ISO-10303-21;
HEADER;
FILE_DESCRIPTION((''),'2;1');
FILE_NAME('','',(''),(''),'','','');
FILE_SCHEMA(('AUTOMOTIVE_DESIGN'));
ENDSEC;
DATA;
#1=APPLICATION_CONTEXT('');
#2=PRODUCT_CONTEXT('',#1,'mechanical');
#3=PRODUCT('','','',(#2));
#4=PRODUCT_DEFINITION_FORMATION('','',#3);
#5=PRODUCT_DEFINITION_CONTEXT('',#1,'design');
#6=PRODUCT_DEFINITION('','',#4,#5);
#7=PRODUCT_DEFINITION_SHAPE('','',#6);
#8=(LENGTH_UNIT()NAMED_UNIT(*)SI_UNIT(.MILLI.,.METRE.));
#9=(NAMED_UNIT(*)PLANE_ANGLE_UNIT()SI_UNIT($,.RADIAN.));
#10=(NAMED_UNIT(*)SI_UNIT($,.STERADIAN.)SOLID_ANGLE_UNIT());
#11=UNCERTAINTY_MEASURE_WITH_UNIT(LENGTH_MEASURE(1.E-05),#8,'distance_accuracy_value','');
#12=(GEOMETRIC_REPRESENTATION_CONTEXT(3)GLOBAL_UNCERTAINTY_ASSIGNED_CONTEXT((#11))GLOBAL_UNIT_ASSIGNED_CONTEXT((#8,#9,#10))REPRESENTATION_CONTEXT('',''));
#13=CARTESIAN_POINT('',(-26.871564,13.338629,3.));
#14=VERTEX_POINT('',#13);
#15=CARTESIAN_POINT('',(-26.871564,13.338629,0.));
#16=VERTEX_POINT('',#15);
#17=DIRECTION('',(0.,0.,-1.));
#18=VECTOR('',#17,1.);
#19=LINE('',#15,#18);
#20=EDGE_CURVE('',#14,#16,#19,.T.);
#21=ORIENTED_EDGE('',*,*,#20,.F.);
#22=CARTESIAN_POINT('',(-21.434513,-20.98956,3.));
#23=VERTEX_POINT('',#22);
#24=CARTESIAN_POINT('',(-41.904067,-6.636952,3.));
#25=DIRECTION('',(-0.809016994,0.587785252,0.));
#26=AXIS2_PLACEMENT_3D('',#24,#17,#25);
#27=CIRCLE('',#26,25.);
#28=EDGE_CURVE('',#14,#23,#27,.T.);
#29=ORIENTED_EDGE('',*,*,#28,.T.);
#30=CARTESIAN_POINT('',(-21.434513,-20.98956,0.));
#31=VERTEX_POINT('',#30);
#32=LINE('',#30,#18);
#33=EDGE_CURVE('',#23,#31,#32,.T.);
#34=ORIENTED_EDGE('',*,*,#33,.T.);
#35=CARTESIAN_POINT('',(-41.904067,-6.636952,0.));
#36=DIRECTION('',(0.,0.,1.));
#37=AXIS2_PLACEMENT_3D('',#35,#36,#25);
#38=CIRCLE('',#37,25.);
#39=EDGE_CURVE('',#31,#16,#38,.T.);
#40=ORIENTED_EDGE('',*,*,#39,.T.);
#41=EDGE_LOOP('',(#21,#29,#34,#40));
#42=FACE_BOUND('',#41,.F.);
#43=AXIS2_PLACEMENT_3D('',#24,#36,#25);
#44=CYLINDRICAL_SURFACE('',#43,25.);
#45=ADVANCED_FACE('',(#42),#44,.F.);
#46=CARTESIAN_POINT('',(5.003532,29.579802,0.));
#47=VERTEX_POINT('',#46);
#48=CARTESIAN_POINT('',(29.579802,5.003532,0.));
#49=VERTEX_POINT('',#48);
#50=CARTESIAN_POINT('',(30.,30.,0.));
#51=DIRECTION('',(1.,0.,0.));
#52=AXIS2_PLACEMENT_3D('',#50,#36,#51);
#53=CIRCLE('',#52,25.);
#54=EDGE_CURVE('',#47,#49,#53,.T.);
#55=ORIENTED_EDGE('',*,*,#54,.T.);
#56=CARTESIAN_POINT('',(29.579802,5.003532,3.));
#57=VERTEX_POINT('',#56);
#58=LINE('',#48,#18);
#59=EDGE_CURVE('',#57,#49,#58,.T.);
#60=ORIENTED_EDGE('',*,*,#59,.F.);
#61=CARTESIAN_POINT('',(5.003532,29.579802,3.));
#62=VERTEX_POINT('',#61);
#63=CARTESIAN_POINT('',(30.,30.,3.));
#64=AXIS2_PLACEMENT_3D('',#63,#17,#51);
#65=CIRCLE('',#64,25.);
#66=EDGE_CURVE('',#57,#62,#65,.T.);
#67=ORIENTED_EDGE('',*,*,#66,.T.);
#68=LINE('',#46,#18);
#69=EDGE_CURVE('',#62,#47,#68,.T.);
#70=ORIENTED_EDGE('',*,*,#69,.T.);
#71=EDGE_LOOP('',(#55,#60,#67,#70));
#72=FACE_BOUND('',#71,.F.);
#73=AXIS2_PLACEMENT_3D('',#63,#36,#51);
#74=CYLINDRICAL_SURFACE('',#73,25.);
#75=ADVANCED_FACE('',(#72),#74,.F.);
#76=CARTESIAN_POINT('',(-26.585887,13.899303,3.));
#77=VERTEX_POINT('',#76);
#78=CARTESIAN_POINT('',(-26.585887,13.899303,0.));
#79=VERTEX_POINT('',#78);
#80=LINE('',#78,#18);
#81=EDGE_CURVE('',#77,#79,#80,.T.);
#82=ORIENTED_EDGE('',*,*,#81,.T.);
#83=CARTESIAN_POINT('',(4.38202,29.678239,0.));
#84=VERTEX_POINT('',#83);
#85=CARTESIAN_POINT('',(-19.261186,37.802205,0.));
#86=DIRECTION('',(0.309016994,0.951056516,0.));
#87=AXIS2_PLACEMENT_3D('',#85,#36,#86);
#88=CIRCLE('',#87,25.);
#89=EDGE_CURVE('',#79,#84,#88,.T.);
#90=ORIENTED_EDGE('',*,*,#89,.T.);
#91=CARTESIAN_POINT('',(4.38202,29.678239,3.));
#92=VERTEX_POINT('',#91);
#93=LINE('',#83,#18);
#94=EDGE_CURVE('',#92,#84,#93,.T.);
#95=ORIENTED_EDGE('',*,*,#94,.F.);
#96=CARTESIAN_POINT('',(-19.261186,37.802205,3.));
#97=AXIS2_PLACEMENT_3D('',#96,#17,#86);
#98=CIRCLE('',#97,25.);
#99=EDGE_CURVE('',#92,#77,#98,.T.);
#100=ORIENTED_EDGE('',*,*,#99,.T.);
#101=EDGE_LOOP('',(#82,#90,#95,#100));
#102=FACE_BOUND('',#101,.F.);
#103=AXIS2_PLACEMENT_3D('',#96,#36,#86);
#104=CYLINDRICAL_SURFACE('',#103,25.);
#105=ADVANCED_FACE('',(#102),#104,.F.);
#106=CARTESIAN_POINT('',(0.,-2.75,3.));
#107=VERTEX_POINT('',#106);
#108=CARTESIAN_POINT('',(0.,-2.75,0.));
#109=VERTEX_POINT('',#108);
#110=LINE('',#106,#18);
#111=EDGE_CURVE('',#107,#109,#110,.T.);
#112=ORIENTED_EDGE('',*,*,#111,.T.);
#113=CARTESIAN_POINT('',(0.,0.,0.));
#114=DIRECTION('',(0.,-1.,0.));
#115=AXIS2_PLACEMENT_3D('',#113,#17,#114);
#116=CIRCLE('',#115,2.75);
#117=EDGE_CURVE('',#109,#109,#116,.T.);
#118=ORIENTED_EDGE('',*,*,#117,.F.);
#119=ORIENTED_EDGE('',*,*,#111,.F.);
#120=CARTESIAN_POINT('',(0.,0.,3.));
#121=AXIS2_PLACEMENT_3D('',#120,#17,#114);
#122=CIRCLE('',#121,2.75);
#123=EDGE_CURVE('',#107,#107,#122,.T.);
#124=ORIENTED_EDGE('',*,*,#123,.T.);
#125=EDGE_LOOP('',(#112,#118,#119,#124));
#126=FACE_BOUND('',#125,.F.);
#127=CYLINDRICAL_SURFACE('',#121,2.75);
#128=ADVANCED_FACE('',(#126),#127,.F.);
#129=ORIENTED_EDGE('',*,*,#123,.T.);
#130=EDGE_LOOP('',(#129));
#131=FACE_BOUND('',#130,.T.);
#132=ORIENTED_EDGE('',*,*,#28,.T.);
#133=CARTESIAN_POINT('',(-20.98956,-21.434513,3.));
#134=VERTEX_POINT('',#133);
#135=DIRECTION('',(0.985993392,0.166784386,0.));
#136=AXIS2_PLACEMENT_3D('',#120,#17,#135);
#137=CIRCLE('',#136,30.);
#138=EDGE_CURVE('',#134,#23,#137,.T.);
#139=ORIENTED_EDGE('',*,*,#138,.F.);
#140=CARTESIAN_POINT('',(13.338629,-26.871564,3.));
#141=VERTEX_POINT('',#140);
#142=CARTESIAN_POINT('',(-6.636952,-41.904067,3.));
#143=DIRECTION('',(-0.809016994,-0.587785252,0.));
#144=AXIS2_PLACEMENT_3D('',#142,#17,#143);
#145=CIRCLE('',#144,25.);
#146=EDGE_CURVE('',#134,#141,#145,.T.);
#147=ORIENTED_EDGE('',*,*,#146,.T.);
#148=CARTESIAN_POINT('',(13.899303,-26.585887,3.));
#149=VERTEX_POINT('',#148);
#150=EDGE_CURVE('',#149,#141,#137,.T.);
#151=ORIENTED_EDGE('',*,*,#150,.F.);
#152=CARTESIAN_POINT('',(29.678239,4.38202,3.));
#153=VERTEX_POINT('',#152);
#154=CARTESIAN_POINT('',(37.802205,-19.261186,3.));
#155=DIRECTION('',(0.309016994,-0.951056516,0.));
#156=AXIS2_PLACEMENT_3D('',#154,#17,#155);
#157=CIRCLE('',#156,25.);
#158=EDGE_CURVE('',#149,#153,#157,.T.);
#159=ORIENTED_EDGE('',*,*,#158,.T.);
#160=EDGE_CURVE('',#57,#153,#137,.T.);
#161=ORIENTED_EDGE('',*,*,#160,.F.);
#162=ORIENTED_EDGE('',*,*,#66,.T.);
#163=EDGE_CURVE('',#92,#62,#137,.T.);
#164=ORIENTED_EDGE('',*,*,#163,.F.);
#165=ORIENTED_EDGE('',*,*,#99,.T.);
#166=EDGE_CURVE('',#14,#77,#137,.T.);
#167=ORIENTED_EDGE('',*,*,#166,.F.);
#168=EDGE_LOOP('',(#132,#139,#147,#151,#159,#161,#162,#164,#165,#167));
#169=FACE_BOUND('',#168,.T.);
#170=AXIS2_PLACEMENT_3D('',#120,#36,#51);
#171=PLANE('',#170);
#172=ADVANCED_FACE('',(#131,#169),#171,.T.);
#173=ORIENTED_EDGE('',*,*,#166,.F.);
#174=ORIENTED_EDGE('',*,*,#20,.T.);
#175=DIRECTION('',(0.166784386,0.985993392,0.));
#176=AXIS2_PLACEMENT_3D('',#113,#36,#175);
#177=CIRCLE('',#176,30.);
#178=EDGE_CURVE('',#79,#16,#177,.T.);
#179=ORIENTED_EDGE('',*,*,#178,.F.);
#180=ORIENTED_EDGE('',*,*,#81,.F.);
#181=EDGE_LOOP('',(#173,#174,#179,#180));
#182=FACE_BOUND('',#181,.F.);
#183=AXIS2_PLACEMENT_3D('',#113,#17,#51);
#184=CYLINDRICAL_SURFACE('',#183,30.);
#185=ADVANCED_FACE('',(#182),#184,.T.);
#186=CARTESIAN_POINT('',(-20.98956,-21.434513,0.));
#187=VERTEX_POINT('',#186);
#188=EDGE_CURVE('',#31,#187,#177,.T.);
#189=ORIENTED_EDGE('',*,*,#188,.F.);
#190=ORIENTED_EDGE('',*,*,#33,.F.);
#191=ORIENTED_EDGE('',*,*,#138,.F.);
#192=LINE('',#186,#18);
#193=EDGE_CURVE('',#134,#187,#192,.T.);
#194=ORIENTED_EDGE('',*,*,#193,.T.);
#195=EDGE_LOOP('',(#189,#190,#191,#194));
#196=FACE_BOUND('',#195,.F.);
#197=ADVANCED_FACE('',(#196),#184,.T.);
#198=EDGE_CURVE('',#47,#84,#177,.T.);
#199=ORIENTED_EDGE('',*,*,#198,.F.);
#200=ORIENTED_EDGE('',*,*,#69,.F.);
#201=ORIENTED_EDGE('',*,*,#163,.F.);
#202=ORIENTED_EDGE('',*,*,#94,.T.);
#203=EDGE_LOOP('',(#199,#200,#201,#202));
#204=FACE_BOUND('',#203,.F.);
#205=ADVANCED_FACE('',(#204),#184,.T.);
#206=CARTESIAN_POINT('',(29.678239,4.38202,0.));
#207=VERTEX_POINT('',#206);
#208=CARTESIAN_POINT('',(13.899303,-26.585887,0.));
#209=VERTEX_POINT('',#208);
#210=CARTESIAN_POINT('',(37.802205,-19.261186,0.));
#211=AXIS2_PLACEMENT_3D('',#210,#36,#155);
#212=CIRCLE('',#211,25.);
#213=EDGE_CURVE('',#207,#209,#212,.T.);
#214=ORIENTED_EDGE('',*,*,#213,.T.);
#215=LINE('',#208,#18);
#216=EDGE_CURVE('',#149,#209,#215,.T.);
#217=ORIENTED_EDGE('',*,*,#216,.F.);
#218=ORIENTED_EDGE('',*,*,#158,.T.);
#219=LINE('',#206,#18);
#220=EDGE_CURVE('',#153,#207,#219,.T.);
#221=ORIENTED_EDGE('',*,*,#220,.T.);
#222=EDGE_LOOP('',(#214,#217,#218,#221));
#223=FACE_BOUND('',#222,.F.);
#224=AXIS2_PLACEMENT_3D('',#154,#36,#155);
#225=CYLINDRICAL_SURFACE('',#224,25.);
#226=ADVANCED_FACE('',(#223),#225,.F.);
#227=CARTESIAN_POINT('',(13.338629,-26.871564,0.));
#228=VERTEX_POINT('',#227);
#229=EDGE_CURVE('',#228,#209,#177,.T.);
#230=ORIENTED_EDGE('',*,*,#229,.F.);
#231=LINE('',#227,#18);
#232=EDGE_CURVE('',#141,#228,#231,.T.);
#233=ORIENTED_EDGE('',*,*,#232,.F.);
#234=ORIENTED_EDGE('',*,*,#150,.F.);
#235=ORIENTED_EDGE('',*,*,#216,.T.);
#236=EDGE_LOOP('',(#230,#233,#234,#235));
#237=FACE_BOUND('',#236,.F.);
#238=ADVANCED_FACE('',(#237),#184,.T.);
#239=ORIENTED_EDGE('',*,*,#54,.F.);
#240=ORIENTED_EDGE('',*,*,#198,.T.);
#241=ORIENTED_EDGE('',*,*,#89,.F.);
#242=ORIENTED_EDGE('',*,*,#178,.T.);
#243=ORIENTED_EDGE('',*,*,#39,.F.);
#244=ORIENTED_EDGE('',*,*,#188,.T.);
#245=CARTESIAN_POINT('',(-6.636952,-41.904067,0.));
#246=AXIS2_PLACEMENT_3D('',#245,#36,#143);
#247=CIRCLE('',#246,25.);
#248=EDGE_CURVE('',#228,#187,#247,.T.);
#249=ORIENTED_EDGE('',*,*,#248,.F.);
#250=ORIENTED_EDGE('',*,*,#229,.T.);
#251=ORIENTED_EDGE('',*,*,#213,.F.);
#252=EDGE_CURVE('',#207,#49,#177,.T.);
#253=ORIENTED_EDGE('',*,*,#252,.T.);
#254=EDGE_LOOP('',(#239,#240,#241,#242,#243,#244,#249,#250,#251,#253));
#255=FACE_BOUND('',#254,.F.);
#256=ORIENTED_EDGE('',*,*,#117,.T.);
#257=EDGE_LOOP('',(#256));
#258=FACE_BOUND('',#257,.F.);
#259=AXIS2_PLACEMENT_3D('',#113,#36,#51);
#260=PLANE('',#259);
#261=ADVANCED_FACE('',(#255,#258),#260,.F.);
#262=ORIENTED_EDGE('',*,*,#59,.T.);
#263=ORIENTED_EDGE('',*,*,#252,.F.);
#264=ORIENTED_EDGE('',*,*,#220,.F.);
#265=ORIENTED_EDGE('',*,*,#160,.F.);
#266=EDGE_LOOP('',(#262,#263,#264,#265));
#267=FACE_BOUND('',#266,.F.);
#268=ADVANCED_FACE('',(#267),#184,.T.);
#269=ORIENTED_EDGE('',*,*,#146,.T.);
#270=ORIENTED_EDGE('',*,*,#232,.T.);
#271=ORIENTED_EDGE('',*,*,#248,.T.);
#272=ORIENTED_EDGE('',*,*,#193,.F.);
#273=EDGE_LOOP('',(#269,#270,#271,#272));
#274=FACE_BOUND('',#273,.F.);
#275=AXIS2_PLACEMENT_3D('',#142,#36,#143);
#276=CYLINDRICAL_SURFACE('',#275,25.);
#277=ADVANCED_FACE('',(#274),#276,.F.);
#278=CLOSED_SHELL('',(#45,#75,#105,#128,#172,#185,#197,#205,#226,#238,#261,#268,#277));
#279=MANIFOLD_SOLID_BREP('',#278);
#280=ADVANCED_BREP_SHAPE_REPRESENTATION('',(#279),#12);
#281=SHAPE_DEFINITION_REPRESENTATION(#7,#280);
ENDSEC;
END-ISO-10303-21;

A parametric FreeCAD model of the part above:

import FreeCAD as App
import Part
import Sketcher
from FreeCAD import Vector
Q = App.Units.Quantity

doc = App.newDocument("Part")
params = doc.addObject("Spreadsheet::Sheet", "Params")
for row, (alias, value) in enumerate([
    ("sketch1_diameter", "60 mm"),
    ("pad1_length", "3 mm"),
    ("sketch2_diameter", "50 mm"),
    ("sketch3_diameter", "5.5 mm"),
    ("hole_diameter", "5.5 mm"),
], start=1):
    params.set(f"A{row}", alias)
    params.set(f"B{row}", "=" + value)
    params.setAlias(f"B{row}", alias)

body = doc.addObject("PartDesign::Body", "Body")

# Sketch on XY plane
sketch1 = body.newObject("Sketcher::SketchObject", "Sketch")
sketch1.AttachmentSupport = (doc.getObject("XY_Plane"), [""])
sketch1.MapMode = "FlatFace"
sketch1.addGeometry(Part.Circle(Vector(0, 0, 0), Vector(0, 0, 1), 30), False)
sketch1.addConstraint(Sketcher.Constraint("Coincident", 0, 3, -1, 1))
sketch1.addConstraint(Sketcher.Constraint("Diameter", 0, Q("60 mm")))
sketch1.setExpression("Constraints[1]", "Params.sketch1_diameter")
pad1 = body.newObject("PartDesign::Pad", "Pad")
pad1.Profile = sketch1
pad1.setExpression("Length", "Params.pad1_length")

# Sketch on XY plane
sketch2 = body.newObject("Sketcher::SketchObject", "Sketch001")
sketch2.AttachmentSupport = (doc.getObject("XY_Plane"), [""])
sketch2.MapMode = "FlatFace"
sketch2.AttachmentOffset = App.Placement(Vector(0, 0, 3), App.Rotation())
sketch2.addGeometry(Part.Circle(Vector(30, 30, 0), Vector(0, 0, 1), 25), False)
sketch2.addConstraint(Sketcher.Constraint("Diameter", 0, Q("50 mm")))
sketch2.addConstraint(Sketcher.Constraint("DistanceX", -1, 1, 0, 3, Q("30 mm")))
sketch2.addConstraint(Sketcher.Constraint("DistanceY", -1, 1, 0, 3, Q("30 mm")))
sketch2.setExpression("Constraints[0]", "Params.sketch2_diameter")
pocket1 = body.newObject("PartDesign::Pocket", "Pocket")
pocket1.Profile = sketch2
pocket1.Type = "ThroughAll"
doc.recompute()

polarpattern = body.newObject("PartDesign::PolarPattern", "PolarPattern")
polarpattern.Originals = [pocket1]
polarpattern.Axis = (doc.getObject("Z_Axis"), [""])
polarpattern.Angle = 360
polarpattern.Occurrences = 5
body.Tip = polarpattern

# Sketch on XY plane
sketch3 = body.newObject("Sketcher::SketchObject", "Sketch002")
sketch3.AttachmentSupport = (doc.getObject("XY_Plane"), [""])
sketch3.MapMode = "FlatFace"
sketch3.AttachmentOffset = App.Placement(Vector(0, 0, 3), App.Rotation())
sketch3.addGeometry(Part.Circle(Vector(0, 0, 0), Vector(0, 0, 1), 2.75), False)
sketch3.addConstraint(Sketcher.Constraint("Coincident", 0, 3, -1, 1))
sketch3.addConstraint(Sketcher.Constraint("Diameter", 0, Q("5.5 mm")))
sketch3.setExpression("Constraints[1]", "Params.sketch3_diameter")
doc.recompute()
hole = body.newObject("PartDesign::Hole", "Hole")
hole.Profile = sketch3
hole.ThreadType = "None"
hole.setExpression("Diameter", "Params.hole_diameter")
hole.DepthType = "ThroughAll"

doc.recompute()
